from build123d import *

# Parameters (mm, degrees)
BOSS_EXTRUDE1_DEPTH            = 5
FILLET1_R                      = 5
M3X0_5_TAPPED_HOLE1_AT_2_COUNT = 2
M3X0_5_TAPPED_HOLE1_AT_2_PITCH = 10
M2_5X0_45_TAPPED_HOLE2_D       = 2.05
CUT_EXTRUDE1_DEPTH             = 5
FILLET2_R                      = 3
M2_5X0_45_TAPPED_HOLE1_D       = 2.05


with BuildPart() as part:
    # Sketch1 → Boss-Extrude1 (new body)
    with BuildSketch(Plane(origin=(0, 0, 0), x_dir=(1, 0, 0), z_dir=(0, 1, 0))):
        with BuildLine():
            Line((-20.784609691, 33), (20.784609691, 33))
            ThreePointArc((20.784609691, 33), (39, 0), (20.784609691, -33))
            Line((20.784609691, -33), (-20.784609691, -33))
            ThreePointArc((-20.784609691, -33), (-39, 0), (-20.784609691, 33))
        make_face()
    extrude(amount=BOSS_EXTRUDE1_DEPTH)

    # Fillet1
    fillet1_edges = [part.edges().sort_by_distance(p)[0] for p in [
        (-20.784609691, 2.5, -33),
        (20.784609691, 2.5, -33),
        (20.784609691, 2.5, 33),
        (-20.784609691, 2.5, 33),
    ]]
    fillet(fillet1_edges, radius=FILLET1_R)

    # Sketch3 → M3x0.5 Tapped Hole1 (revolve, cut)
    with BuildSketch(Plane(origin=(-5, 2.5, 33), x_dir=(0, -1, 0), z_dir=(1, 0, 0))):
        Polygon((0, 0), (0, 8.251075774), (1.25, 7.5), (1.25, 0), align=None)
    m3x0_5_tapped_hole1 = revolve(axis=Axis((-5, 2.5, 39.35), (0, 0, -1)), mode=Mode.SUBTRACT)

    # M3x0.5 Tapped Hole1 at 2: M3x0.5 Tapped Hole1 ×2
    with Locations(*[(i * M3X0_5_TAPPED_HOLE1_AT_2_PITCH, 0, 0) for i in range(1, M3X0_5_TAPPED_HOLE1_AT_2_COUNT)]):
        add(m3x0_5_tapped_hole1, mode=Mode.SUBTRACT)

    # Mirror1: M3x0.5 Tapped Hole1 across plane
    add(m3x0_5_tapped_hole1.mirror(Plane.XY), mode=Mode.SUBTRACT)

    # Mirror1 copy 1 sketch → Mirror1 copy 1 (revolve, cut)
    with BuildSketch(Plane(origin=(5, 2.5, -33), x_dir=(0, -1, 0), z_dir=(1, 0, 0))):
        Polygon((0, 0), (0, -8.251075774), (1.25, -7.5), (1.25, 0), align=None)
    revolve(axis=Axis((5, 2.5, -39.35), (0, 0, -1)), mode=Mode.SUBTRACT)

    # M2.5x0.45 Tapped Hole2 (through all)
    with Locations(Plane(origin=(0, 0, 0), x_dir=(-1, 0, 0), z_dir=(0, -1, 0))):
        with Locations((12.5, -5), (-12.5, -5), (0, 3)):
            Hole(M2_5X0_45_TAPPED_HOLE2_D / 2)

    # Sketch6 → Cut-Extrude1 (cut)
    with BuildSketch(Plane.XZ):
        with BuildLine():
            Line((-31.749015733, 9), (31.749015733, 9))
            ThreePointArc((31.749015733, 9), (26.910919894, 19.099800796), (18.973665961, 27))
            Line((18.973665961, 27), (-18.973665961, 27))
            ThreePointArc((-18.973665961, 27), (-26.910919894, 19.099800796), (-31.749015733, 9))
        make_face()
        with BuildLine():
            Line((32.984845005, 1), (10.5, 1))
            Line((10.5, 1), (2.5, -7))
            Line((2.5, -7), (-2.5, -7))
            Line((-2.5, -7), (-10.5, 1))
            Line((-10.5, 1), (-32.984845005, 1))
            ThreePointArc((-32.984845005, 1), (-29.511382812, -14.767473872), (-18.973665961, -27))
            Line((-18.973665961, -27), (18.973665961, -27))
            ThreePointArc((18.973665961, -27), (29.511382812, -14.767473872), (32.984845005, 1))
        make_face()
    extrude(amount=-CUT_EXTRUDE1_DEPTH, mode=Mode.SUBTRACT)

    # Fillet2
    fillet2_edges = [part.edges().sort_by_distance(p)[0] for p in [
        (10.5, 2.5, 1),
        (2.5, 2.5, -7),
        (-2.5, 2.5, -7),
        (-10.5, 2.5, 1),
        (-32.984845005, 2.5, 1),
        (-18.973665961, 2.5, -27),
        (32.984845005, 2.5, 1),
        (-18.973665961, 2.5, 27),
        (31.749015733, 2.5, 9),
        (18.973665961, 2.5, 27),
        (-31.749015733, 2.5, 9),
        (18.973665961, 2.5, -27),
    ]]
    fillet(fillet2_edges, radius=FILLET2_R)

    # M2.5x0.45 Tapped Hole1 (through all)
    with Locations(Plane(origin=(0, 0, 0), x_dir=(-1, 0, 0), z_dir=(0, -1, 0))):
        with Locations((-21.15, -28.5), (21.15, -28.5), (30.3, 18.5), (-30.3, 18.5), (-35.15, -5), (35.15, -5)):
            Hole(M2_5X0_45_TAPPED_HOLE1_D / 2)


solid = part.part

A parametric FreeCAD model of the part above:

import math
import FreeCAD as App
import Part
import Sketcher
from FreeCAD import Vector
Q = App.Units.Quantity


def edges_at(feature, points):
    """Names of the edges that pass closest to the given points."""
    edges = feature.Shape.Edges
    near = lambda p: min(range(len(edges)), key=lambda i: edges[i].distToShape(Part.Vertex(*p))[0])
    return sorted({f"Edge{near(p) + 1}" for p in points})


def add_polygon(sketch, points):
    """Adds a closed chain of lines whose ends are joined by coincident constraints."""
    first, n = sketch.GeometryCount, len(points)
    for a, b in zip(points, points[1:] + points[:1]):
        sketch.addGeometry(Part.LineSegment(App.Vector(*a, 0), App.Vector(*b, 0)), False)
    for i in range(n):
        sketch.addConstraint(Sketcher.Constraint("Coincident", first + i, 2, first + (i + 1) % n, 1))

doc = App.newDocument("Part")
body = doc.addObject("PartDesign::Body", "Body")

# Sketch on XZ plane
sketch1 = body.newObject("Sketcher::SketchObject", "Sketch")
sketch1.AttachmentSupport = (doc.getObject("XZ_Plane"), [""])
sketch1.MapMode = "FlatFace"
sketch1.addGeometry([
    Part.LineSegment(Vector(21, -33, 0), Vector(-21, -33, 0)),
    Part.ArcOfCircle(Part.Circle(Vector(0, 0, 0), Vector(0, 0, 1), 39), math.radians(122), math.radians(238)),
    Part.LineSegment(Vector(-21, 33, 0), Vector(21, 33, 0)),
    Part.ArcOfCircle(Part.Circle(Vector(0, 0, 0), Vector(0, 0, 1), 39), math.radians(-58), math.radians(58)),
], False)
sketch1.addConstraint([
    Sketcher.Constraint("Coincident", 0, 2, 1, 2),
    Sketcher.Constraint("Coincident", 1, 1, 2, 1),
    Sketcher.Constraint("Coincident", 2, 2, 3, 2),
    Sketcher.Constraint("Coincident", 3, 1, 0, 1),
    Sketcher.Constraint("Horizontal", 0),
    Sketcher.Constraint("Horizontal", 2),
    Sketcher.Constraint("Coincident", 1, 3, -1, 1),
    Sketcher.Constraint("Coincident", 3, 3, -1, 1),
    Sketcher.Constraint("Equal", 1, 3),
    Sketcher.Constraint("Vertical", 0, 2, 1, 1),
    Sketcher.Constraint("Radius", 1, 39.0),
    Sketcher.Constraint("DistanceY", 0, 2, -1, 1, 33.0),
])
pad1 = body.newObject("PartDesign::Pad", "Pad")
pad1.Profile = sketch1
pad1.Length = 5
pad1.Reversed = True
doc.recompute()

fillet = body.newObject("PartDesign::Fillet", "Fillet")
fillet.Base = (pad1, edges_at(pad1, [
    (-20.785, 2.5, -33),
    (20.785, 2.5, -33),
    (20.785, 2.5, 33),
    (-20.785, 2.5, 33),
]))
fillet.Radius = 5

# Sketch on YZ plane
sketch2 = body.newObject("Sketcher::SketchObject", "Sketch001")
sketch2.AttachmentSupport = (doc.getObject("YZ_Plane"), [""])
sketch2.MapMode = "FlatFace"
sketch2.AttachmentOffset = App.Placement(Vector(0, 0, -5), App.Rotation())
add_polygon(sketch2, [(2.5, 24.7), (2.5, 33), (1.2, 33), (1.2, 25.5)])  # lines 0-3
sketch2.addGeometry(Part.LineSegment(Vector(2.5, 33, 0), Vector(2.5, 24.7, 0)), True)  # axis
sketch2.addConstraint([
    Sketcher.Constraint("Vertical", 0),
    Sketcher.Constraint("Horizontal", 1),
    Sketcher.Constraint("Vertical", 2),
    Sketcher.Constraint("Vertical", 4),
    Sketcher.Constraint("Coincident", 4, 1, 0, 2),
    Sketcher.Constraint("Equal", 0, 4),
    Sketcher.Constraint("Angle", 3, Q("-31 deg")),
    Sketcher.Constraint("DistanceY", 2, 2, 2, 1, 7.5),
    Sketcher.Constraint("DistanceY", -1, 1, 0, 2, 33.0),
    Sketcher.Constraint("DistanceX", 1, 2, 1, 1, 1.25),
    Sketcher.Constraint("DistanceX", -1, 1, 0, 2, 2.5),
])
groove = body.newObject("PartDesign::Groove", "Groove")
groove.Profile = sketch2
groove.ReferenceAxis = (sketch2, ["Axis0"])
groove.Angle = 360
doc.recompute()

linearpattern = body.newObject("PartDesign::LinearPattern", "LinearPattern")
linearpattern.Originals = [groove]
linearpattern.Direction = (doc.getObject("X_Axis"), [""])
linearpattern.Mode = "offset"
linearpattern.Offset = 10
linearpattern.Occurrences = 2
body.Tip = linearpattern
doc.recompute()

mirrored = body.newObject("PartDesign::Mirrored", "Mirrored")
mirrored.Originals = [groove]
mirrored.MirrorPlane = (doc.getObject("XY_Plane"), [""])
body.Tip = mirrored

# Sketch on YZ plane
sketch3 = body.newObject("Sketcher::SketchObject", "Sketch002")
sketch3.AttachmentSupport = (doc.getObject("YZ_Plane"), [""])
sketch3.MapMode = "FlatFace"
sketch3.AttachmentOffset = App.Placement(Vector(0, 0, 5), App.Rotation())
add_polygon(sketch3, [(2.5, -33), (2.5, -24.7), (1.2, -25.5), (1.2, -33)])  # lines 0-3
sketch3.addGeometry(Part.LineSegment(Vector(2.5, -24.7, 0), Vector(2.5, -33, 0)), True)  # axis
sketch3.addConstraint([
    Sketcher.Constraint("Vertical", 0),
    Sketcher.Constraint("Vertical", 2),
    Sketcher.Constraint("Horizontal", 3),
    Sketcher.Constraint("Vertical", 4),
    Sketcher.Constraint("Coincident", 4, 1, 0, 2),
    Sketcher.Constraint("Horizontal", 2, 2, 4, 2),
    Sketcher.Constraint("Angle", 1, Q("-149 deg")),
    Sketcher.Constraint("DistanceY", 2, 2, 2, 1, 7.5),
    Sketcher.Constraint("DistanceY", 2, 2, -1, 1, 33.0),
    Sketcher.Constraint("DistanceX", 3, 1, 3, 2, 1.25),
    Sketcher.Constraint("DistanceX", -1, 1, 0, 2, 2.5),
])
groove2 = body.newObject("PartDesign::Groove", "Groove001")
groove2.Profile = sketch3
groove2.ReferenceAxis = (sketch3, ["Axis0"])
groove2.Angle = 360

# Sketch on XZ plane
sketch4 = body.newObject("Sketcher::SketchObject", "Sketch003")
sketch4.AttachmentSupport = (doc.getObject("XZ_Plane"), [""])
sketch4.MapMode = "FlatFace"
sketch4.addGeometry([
    Part.Circle(Vector(-12.5, 5, 0), Vector(0, 0, 1), 1),
    Part.Circle(Vector(12.5, 5, 0), Vector(0, 0, 1), 1),
    Part.Circle(Vector(0, -3, 0), Vector(0, 0, 1), 1),
], False)
sketch4.addConstraint([
    Sketcher.Constraint("Equal", 0, 1),
    Sketcher.Constraint("Equal", 1, 2),
    Sketcher.Constraint("Symmetric", 0, 3, 1, 3, -2),
    Sketcher.Constraint("PointOnObject", 2, 3, -2),
    Sketcher.Constraint("Diameter", 0, 2.05),
    Sketcher.Constraint("DistanceY", -1, 1, 0, 3, 5.0),
    Sketcher.Constraint("DistanceY", 2, 3, -1, 1, 3.0),
    Sketcher.Constraint("DistanceX", 0, 3, 1, 3, 25.0),
])
doc.recompute()
hole = body.newObject("PartDesign::Hole", "Hole")
hole.Profile = sketch4
hole.ThreadType = "None"
hole.Diameter = 2.05
hole.DepthType = "ThroughAll"

# Sketch on XZ plane
sketch5 = body.newObject("Sketcher::SketchObject", "Sketch004")
sketch5.AttachmentSupport = (doc.getObject("XZ_Plane"), [""])
sketch5.MapMode = "FlatFace"
sketch5.addGeometry([
    Part.LineSegment(Vector(-32, 9, 0), Vector(32, 9, 0)),  # 0
    Part.ArcOfCircle(Part.Circle(Vector(0, 0, 0), Vector(0, 0, 1), 33), math.radians(16), math.radians(55)),  # 1
    Part.LineSegment(Vector(19, 27, 0), Vector(-19, 27, 0)),  # 2
    Part.ArcOfCircle(Part.Circle(Vector(0, 0, 0), Vector(0, 0, 1), 33), math.radians(125), math.radians(164)),  # 3
    Part.LineSegment(Vector(33, 1, 0), Vector(10, 1, 0)),  # 4
    Part.LineSegment(Vector(10, 1, 0), Vector(2, -7, 0)),  # 5
    Part.LineSegment(Vector(2, -7, 0), Vector(-2, -7, 0)),  # 6
    Part.LineSegment(Vector(-2, -7, 0), Vector(-10, 1, 0)),  # 7
    Part.LineSegment(Vector(-10, 1, 0), Vector(-33, 1, 0)),  # 8
    Part.ArcOfCircle(Part.Circle(Vector(0, 0, 0), Vector(0, 0, 1), 33), math.radians(178), math.radians(235)),  # 9
    Part.LineSegment(Vector(-19, -27, 0), Vector(19, -27, 0)),  # 10
    Part.ArcOfCircle(Part.Circle(Vector(0, 0, 0), Vector(0, 0, 1), 33), math.radians(-55), math.radians(2)),  # 11
], False)
sketch5.addConstraint([
    Sketcher.Constraint("Coincident", 0, 2, 1, 1),
    Sketcher.Constraint("Coincident", 1, 2, 2, 1),
    Sketcher.Constraint("Coincident", 2, 2, 3, 1),
    Sketcher.Constraint("Coincident", 3, 2, 0, 1),
    Sketcher.Constraint("Coincident", 4, 2, 5, 1),
    Sketcher.Constraint("Coincident", 5, 2, 6, 1),
    Sketcher.Constraint("Coincident", 6, 2, 7, 1),
    Sketcher.Constraint("Coincident", 7, 2, 8, 1),
    Sketcher.Constraint("Coincident", 8, 2, 9, 1),
    Sketcher.Constraint("Coincident", 9, 2, 10, 1),
    Sketcher.Constraint("Coincident", 10, 2, 11, 1),
    Sketcher.Constraint("Coincident", 11, 2, 4, 1),
    Sketcher.Constraint("Horizontal", 0),
    Sketcher.Constraint("Horizontal", 2),
    Sketcher.Constraint("Horizontal", 4),
    Sketcher.Constraint("Horizontal", 6),
    Sketcher.Constraint("Horizontal", 8),
    Sketcher.Constraint("Horizontal", 10),
    Sketcher.Constraint("Coincident", 1, 3, -1, 1),
    Sketcher.Constraint("Coincident", 3, 3, -1, 1),
    Sketcher.Constraint("Coincident", 9, 3, -1, 1),
    Sketcher.Constraint("Coincident", 11, 3, -1, 1),
    Sketcher.Constraint("Equal", 1, 3),
    Sketcher.Constraint("Equal", 3, 9),
    Sketcher.Constraint("Equal", 9, 11),
    Sketcher.Constraint("Symmetric", 4, 2, 7, 2, -2),
    Sketcher.Constraint("Perpendicular", 5, 7),
    Sketcher.Constraint("Vertical", 2, 2, 9, 2),
    Sketcher.Constraint("Equal", 5, 7),
    Sketcher.Constraint("Radius", 1, 33.0),
    Sketcher.Constraint("DistanceX", 6, 2, 6, 1, 5.0),
    Sketcher.Constraint("DistanceY", -1, 1, 0, 2, 9.0),
    Sketcher.Constraint("DistanceY", -1, 1, 1, 2, 27.0),
    Sketcher.Constraint("DistanceY", -1, 1, 4, 2, 1.0),
    Sketcher.Constraint("DistanceY", 5, 2, -1, 1, 7.0),
])
pocket1 = body.newObject("PartDesign::Pocket", "Pocket")
pocket1.Profile = sketch5
pocket1.Length = 5
doc.recompute()

fillet2 = body.newObject("PartDesign::Fillet", "Fillet001")
fillet2.Base = (pocket1, edges_at(pocket1, [
    (10.5, 2.5, 1),
    (2.5, 2.5, -7),
    (-2.5, 2.5, -7),
    (-10.5, 2.5, 1),
    (-32.985, 2.5, 1),
    (-18.974, 2.5, -27),
    (32.985, 2.5, 1),
    (-18.974, 2.5, 27),
    (31.749, 2.5, 9),
    (18.974, 2.5, 27),
    (-31.749, 2.5, 9),
    (18.974, 2.5, -27),
]))
fillet2.Radius = 3

# Sketch on XZ plane
sketch6 = body.newObject("Sketcher::SketchObject", "Sketch005")
sketch6.AttachmentSupport = (doc.getObject("XZ_Plane"), [""])
sketch6.MapMode = "FlatFace"
sketch6.addGeometry([
    Part.Circle(Vector(21.1, 28.5, 0), Vector(0, 0, 1), 1),  # 0
    Part.Circle(Vector(-21.1, 28.5, 0), Vector(0, 0, 1), 1),  # 1
    Part.Circle(Vector(-30.3, -18.5, 0), Vector(0, 0, 1), 1),  # 2
    Part.Circle(Vector(30.3, -18.5, 0), Vector(0, 0, 1), 1),  # 3
    Part.Circle(Vector(35.1, 5, 0), Vector(0, 0, 1), 1),  # 4
    Part.Circle(Vector(-35.1, 5, 0), Vector(0, 0, 1), 1),  # 5
], False)
sketch6.addConstraint([
    Sketcher.Constraint("Equal", 0, 1),
    Sketcher.Constraint("Equal", 1, 2),
    Sketcher.Constraint("Equal", 2, 3),
    Sketcher.Constraint("Equal", 3, 4),
    Sketcher.Constraint("Equal", 4, 5),
    Sketcher.Constraint("Symmetric", 0, 3, 1, 3, -2),
    Sketcher.Constraint("Symmetric", 2, 3, 3, 3, -2),
    Sketcher.Constraint("Symmetric", 4, 3, 5, 3, -2),
    Sketcher.Constraint("Diameter", 0, 2.05),
    Sketcher.Constraint("DistanceY", -1, 1, 4, 3, 5.0),
    Sketcher.Constraint("DistanceY", 2, 3, 1, 3, 47.0),
    Sketcher.Constraint("DistanceX", 0, 3, 4, 3, 14.0),
    Sketcher.Constraint("DistanceY", -1, 1, 0, 3, 28.5),
    Sketcher.Constraint("DistanceX", 2, 3, -1, 1, 30.3),
    Sketcher.Constraint("DistanceX", 1, 3, 0, 3, 42.3),
])
doc.recompute()
hole2 = body.newObject("PartDesign::Hole", "Hole001")
hole2.Profile = sketch6
hole2.ThreadType = "None"
hole2.Diameter = 2.05
hole2.DepthType = "ThroughAll"

doc.recompute()
